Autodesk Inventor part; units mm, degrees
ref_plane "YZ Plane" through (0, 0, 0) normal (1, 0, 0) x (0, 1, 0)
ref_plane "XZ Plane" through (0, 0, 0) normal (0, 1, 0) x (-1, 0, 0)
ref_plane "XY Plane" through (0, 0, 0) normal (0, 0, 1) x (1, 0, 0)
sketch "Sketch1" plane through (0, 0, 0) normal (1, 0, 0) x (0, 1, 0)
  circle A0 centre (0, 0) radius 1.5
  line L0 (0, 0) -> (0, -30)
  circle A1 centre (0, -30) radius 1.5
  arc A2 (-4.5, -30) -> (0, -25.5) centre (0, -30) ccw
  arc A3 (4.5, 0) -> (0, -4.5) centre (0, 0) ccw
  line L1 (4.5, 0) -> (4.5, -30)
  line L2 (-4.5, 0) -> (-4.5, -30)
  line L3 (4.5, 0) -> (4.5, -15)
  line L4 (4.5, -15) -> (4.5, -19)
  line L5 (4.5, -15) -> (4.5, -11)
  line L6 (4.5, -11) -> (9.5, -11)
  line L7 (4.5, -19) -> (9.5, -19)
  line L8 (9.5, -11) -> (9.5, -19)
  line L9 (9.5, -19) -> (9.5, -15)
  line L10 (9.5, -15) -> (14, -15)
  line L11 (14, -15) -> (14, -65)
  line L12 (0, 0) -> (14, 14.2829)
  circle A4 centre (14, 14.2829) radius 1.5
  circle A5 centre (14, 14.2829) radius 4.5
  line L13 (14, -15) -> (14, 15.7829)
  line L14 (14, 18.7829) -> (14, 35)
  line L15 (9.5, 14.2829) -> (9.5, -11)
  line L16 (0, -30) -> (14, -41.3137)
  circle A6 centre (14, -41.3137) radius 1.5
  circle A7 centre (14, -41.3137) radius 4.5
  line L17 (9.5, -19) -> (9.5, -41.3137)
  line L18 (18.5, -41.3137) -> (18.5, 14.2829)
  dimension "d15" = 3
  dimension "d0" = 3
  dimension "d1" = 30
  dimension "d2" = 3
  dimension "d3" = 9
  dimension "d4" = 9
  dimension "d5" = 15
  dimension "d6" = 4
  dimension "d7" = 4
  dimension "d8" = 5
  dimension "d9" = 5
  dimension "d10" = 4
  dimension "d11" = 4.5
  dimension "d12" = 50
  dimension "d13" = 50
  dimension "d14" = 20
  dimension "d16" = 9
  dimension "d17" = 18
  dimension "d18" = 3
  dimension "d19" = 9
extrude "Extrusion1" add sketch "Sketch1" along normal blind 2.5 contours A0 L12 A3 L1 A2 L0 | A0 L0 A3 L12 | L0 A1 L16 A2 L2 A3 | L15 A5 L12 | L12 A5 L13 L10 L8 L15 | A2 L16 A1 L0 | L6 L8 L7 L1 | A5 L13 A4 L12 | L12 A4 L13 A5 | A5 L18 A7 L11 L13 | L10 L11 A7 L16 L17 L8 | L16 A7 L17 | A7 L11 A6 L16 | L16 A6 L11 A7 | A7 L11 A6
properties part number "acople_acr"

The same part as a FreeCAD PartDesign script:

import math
import FreeCAD as App
import Part
import Sketcher
Q = App.Units.Quantity

doc = App.newDocument("Part")
body = doc.addObject("PartDesign::Body", "Body")

# Sketch on YZ plane
sketch1 = body.newObject("Sketcher::SketchObject", "Sketch")
sketch1.AttachmentSupport = (doc.getObject("YZ_Plane"), [""])
sketch1.MapMode = "FlatFace"
sketch1.addGeometry(Part.ArcOfCircle(Part.Circle(App.Vector(0, 0, 0), App.Vector(0, 0, 1), 4.5), math.radians(0), math.radians(180)), False)
sketch1.addGeometry(Part.LineSegment(App.Vector(-4.5, 0, 0), App.Vector(-4.5, -30, 0)), False)
sketch1.addGeometry(Part.ArcOfCircle(Part.Circle(App.Vector(0, -30, 0), App.Vector(0, 0, 1), 4.5), math.radians(180), math.radians(360)), False)
sketch1.addGeometry(Part.LineSegment(App.Vector(4.5, -30, 0), App.Vector(4.5, -19, 0)), False)
sketch1.addGeometry(Part.LineSegment(App.Vector(4.5, -19, 0), App.Vector(9.5, -19, 0)), False)
sketch1.addGeometry(Part.LineSegment(App.Vector(9.5, -19, 0), App.Vector(9.5, -41.3, 0)), False)
sketch1.addGeometry(Part.ArcOfCircle(Part.Circle(App.Vector(14, -41.3, 0), App.Vector(0, 0, 1), 4.5), math.radians(180), math.radians(360)), False)
sketch1.addGeometry(Part.LineSegment(App.Vector(18.5, -41.3, 0), App.Vector(18.5, 14.3, 0)), False)
sketch1.addGeometry(Part.ArcOfCircle(Part.Circle(App.Vector(14, 14.3, 0), App.Vector(0, 0, 1), 4.5), math.radians(0), math.radians(180)), False)
sketch1.addGeometry(Part.LineSegment(App.Vector(9.5, 14.3, 0), App.Vector(9.5, -11, 0)), False)
sketch1.addGeometry(Part.LineSegment(App.Vector(9.5, -11, 0), App.Vector(4.5, -11, 0)), False)
sketch1.addGeometry(Part.LineSegment(App.Vector(4.5, -11, 0), App.Vector(4.5, 0, 0)), False)
sketch1.addGeometry(Part.Circle(App.Vector(0, 0, 0), App.Vector(0, 0, 1), 1.5), False)
sketch1.addGeometry(Part.Circle(App.Vector(0, -30, 0), App.Vector(0, 0, 1), 1.5), False)
sketch1.addGeometry(Part.Circle(App.Vector(14, 14.3, 0), App.Vector(0, 0, 1), 1.5), False)
sketch1.addGeometry(Part.Circle(App.Vector(14, -41.3, 0), App.Vector(0, 0, 1), 1.5), False)
sketch1.addConstraint(Sketcher.Constraint("Tangent", 0, 2, 1, 1))
sketch1.addConstraint(Sketcher.Constraint("Tangent", 1, 2, 2, 1))
sketch1.addConstraint(Sketcher.Constraint("Tangent", 2, 2, 3, 1))
sketch1.addConstraint(Sketcher.Constraint("Coincident", 3, 2, 4, 1))
sketch1.addConstraint(Sketcher.Constraint("Coincident", 4, 2, 5, 1))
sketch1.addConstraint(Sketcher.Constraint("Tangent", 5, 2, 6, 1))
sketch1.addConstraint(Sketcher.Constraint("Tangent", 6, 2, 7, 1))
sketch1.addConstraint(Sketcher.Constraint("Tangent", 7, 2, 8, 1))
sketch1.addConstraint(Sketcher.Constraint("Tangent", 8, 2, 9, 1))
sketch1.addConstraint(Sketcher.Constraint("Coincident", 9, 2, 10, 1))
sketch1.addConstraint(Sketcher.Constraint("Coincident", 10, 2, 11, 1))
sketch1.addConstraint(Sketcher.Constraint("Tangent", 11, 2, 0, 1))
sketch1.addConstraint(Sketcher.Constraint("Vertical", 1))
sketch1.addConstraint(Sketcher.Constraint("Vertical", 3))
sketch1.addConstraint(Sketcher.Constraint("Horizontal", 4))
sketch1.addConstraint(Sketcher.Constraint("Vertical", 5))
sketch1.addConstraint(Sketcher.Constraint("Vertical", 7))
sketch1.addConstraint(Sketcher.Constraint("Vertical", 9))
sketch1.addConstraint(Sketcher.Constraint("Horizontal", 10))
sketch1.addConstraint(Sketcher.Constraint("Vertical", 11))
sketch1.addConstraint(Sketcher.Constraint("Coincident", 0, 3, -1, 1))
sketch1.addConstraint(Sketcher.Constraint("Coincident", 12, 3, -1, 1))
sketch1.addConstraint(Sketcher.Constraint("Coincident", 13, 3, 2, 3))
sketch1.addConstraint(Sketcher.Constraint("Coincident", 14, 3, 8, 3))
sketch1.addConstraint(Sketcher.Constraint("Coincident", 15, 3, 6, 3))
sketch1.addConstraint(Sketcher.Constraint("Equal", 0, 2))
sketch1.addConstraint(Sketcher.Constraint("Equal", 2, 6))
sketch1.addConstraint(Sketcher.Constraint("Equal", 6, 8))
sketch1.addConstraint(Sketcher.Constraint("Equal", 12, 13))
sketch1.addConstraint(Sketcher.Constraint("Equal", 13, 14))
sketch1.addConstraint(Sketcher.Constraint("Equal", 14, 15))
sketch1.addConstraint(Sketcher.Constraint("Equal", 3, 11))
sketch1.addConstraint(Sketcher.Constraint("Diameter", 12, Q("3 mm")))
sketch1.addConstraint(Sketcher.Constraint("Radius", 0, Q("4.5 mm")))
sketch1.addConstraint(Sketcher.Constraint("DistanceX", 4, 1, 4, 2, Q("5 mm")))
sketch1.addConstraint(Sketcher.Constraint("DistanceY", 1, 2, 1, 1, Q("30 mm")))
sketch1.addConstraint(Sketcher.Constraint("DistanceY", 3, 1, 3, 2, Q("11 mm")))
sketch1.addConstraint(Sketcher.Constraint("DistanceY", 9, 2, 9, 1, Q("25.283 mm")))
sketch1.addConstraint(Sketcher.Constraint("DistanceY", 5, 2, 5, 1, Q("22.3137 mm")))
pad1 = body.newObject("PartDesign::Pad", "Pad")
pad1.Profile = sketch1
pad1.Length = 2.5

doc.recompute()
